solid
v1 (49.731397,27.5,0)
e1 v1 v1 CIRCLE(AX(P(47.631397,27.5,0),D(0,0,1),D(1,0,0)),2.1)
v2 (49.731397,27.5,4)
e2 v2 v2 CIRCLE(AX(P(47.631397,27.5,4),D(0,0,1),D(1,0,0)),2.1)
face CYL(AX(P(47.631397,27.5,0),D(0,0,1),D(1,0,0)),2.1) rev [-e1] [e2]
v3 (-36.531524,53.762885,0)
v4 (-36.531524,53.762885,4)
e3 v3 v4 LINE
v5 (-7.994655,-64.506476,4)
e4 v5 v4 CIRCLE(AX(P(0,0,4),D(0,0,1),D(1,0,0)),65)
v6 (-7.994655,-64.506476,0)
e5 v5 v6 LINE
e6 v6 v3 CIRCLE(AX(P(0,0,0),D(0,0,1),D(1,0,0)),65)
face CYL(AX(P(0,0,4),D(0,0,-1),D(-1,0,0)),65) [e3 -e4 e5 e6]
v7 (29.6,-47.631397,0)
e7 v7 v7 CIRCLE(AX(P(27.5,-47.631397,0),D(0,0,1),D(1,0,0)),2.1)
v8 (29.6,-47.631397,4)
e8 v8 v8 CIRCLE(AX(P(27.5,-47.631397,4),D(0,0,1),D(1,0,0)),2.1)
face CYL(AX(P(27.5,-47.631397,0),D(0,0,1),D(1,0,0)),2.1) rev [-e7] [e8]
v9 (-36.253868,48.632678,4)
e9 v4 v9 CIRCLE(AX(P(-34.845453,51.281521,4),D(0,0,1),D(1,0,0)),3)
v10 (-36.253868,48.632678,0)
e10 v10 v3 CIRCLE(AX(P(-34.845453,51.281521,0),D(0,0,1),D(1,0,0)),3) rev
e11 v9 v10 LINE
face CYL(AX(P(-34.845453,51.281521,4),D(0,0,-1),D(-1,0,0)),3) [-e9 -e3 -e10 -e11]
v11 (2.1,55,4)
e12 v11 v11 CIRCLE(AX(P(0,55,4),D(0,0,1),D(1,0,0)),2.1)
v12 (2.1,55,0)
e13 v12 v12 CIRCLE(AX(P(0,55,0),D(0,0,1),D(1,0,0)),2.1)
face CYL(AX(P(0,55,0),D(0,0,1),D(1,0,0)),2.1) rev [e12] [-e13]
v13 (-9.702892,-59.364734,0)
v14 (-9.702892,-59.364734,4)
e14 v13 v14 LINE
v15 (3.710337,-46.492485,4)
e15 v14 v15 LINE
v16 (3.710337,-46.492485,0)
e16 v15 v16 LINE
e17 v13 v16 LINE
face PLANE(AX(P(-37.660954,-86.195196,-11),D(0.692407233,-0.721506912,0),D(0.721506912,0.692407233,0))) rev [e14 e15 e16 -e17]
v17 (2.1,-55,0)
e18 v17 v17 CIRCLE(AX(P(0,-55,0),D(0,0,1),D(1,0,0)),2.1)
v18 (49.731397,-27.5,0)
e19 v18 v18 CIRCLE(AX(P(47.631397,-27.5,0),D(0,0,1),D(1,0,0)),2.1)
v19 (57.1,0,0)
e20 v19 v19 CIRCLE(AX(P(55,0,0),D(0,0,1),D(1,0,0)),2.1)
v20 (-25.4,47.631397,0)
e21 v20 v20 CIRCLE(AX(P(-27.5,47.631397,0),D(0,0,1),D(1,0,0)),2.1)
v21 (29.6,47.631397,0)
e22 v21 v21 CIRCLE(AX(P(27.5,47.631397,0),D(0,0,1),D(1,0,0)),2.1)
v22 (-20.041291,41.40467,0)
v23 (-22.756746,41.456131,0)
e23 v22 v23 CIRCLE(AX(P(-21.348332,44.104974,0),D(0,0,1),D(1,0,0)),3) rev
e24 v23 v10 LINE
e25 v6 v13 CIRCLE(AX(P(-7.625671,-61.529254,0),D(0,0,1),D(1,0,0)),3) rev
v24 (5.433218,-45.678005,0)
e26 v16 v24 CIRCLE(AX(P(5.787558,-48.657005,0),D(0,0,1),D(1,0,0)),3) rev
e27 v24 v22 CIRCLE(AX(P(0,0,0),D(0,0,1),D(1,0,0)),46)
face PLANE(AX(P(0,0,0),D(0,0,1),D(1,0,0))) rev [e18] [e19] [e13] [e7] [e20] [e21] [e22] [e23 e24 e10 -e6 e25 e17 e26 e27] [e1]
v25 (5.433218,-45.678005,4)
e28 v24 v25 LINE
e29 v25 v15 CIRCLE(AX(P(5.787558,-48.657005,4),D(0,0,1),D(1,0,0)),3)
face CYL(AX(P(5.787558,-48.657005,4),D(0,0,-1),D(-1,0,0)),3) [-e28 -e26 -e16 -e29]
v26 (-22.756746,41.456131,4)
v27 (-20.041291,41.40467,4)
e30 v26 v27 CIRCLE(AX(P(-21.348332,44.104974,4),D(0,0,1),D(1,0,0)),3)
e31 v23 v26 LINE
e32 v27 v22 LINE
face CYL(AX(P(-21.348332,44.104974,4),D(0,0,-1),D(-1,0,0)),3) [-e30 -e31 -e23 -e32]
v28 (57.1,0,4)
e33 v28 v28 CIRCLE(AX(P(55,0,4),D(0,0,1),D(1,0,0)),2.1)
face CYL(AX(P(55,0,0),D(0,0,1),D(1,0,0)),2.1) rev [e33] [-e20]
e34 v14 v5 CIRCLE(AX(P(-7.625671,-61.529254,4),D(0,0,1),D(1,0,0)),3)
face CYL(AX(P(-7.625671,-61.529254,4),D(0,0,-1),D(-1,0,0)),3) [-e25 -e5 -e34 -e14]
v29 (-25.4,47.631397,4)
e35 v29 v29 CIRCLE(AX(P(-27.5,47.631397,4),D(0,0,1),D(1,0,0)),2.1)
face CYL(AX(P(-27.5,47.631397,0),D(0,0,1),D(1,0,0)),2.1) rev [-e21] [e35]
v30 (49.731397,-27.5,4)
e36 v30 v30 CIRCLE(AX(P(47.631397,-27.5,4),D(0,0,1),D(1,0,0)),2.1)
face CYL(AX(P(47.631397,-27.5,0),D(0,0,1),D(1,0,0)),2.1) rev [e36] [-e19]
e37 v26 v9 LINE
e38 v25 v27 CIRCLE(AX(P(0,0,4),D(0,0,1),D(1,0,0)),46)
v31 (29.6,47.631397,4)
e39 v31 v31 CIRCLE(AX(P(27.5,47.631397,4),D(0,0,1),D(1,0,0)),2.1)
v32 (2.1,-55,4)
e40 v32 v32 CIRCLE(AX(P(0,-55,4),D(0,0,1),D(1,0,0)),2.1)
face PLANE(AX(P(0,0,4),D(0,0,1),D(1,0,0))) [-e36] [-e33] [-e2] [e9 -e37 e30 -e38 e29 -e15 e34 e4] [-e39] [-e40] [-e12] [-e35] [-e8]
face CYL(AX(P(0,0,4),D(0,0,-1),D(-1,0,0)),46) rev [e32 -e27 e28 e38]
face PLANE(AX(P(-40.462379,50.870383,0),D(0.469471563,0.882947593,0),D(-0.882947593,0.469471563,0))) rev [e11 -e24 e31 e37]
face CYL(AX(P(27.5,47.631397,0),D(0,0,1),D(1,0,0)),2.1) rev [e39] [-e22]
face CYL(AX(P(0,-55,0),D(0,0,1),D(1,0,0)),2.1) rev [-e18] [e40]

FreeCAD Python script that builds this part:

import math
import FreeCAD as App
import Part
import Sketcher

V = App.Vector
Q = App.Units.Quantity


def edges_at(feature, points):
    """Names of the edges that pass closest to the given points."""
    edges = feature.Shape.Edges
    near = lambda p: min(range(len(edges)), key=lambda i: edges[i].distToShape(Part.Vertex(*p))[0])
    return sorted({f"Edge{near(p) + 1}" for p in points})

doc = App.newDocument("Part")
body = doc.addObject("PartDesign::Body", "Body")

# Sketch on XY plane
sketch1 = body.newObject("Sketcher::SketchObject", "Sketch")
sketch1.AttachmentSupport = (doc.getObject("XY_Plane"), [""])
sketch1.MapMode = "FlatFace"
sketch1.addGeometry(Part.Circle(V(0, 0, 0), V(0, 0, 1), 65), False)
sketch1.addGeometry(Part.Circle(V(0, 0, 0), V(0, 0, 1), 46), False)
sketch1.addConstraint(Sketcher.Constraint("Coincident", 0, 3, -1, 1))
sketch1.addConstraint(Sketcher.Constraint("Coincident", 1, 3, -1, 1))
sketch1.addConstraint(Sketcher.Constraint("Diameter", 0, Q("130 mm")))
sketch1.addConstraint(Sketcher.Constraint("Diameter", 1, Q("92 mm")))
pad1 = body.newObject("PartDesign::Pad", "Pad")
pad1.Profile = sketch1
pad1.Length = 4

# Sketch on XY plane
sketch2 = body.newObject("Sketcher::SketchObject", "Sketch001")
sketch2.AttachmentSupport = (doc.getObject("XY_Plane"), [""])
sketch2.MapMode = "FlatFace"
sketch2.AttachmentOffset = App.Placement(V(0, 0, 4), App.Rotation())
sketch2.addGeometry(Part.Circle(V(0, 55, 0), V(0, 0, 1), 2.1), False)
sketch2.addGeometry(Part.Circle(V(27.5, 47.6, 0), V(0, 0, 1), 2.1), False)
sketch2.addGeometry(Part.Circle(V(47.6, 27.5, 0), V(0, 0, 1), 2.1), False)
sketch2.addGeometry(Part.Circle(V(55, 0, 0), V(0, 0, 1), 2.1), False)
sketch2.addGeometry(Part.Circle(V(47.6, -27.5, 0), V(0, 0, 1), 2.1), False)
sketch2.addGeometry(Part.Circle(V(27.5, -47.6, 0), V(0, 0, 1), 2.1), False)
sketch2.addGeometry(Part.Circle(V(0, -55, 0), V(0, 0, 1), 2.1), False)
sketch2.addGeometry(Part.Circle(V(-27.5, -47.6, 0), V(0, 0, 1), 2.1), False)
sketch2.addGeometry(Part.Circle(V(-47.6, -27.5, 0), V(0, 0, 1), 2.1), False)
sketch2.addGeometry(Part.Circle(V(-55, 0, 0), V(0, 0, 1), 2.1), False)
sketch2.addGeometry(Part.Circle(V(-47.6, 27.5, 0), V(0, 0, 1), 2.1), False)
sketch2.addGeometry(Part.Circle(V(-27.5, 47.6, 0), V(0, 0, 1), 2.1), False)
sketch2.addConstraint(Sketcher.Constraint("Equal", 0, 1))
sketch2.addConstraint(Sketcher.Constraint("Equal", 1, 2))
sketch2.addConstraint(Sketcher.Constraint("Equal", 2, 3))
sketch2.addConstraint(Sketcher.Constraint("Equal", 3, 4))
sketch2.addConstraint(Sketcher.Constraint("Equal", 4, 5))
sketch2.addConstraint(Sketcher.Constraint("Equal", 5, 6))
sketch2.addConstraint(Sketcher.Constraint("Equal", 6, 7))
sketch2.addConstraint(Sketcher.Constraint("Equal", 7, 8))
sketch2.addConstraint(Sketcher.Constraint("Equal", 8, 9))
sketch2.addConstraint(Sketcher.Constraint("Equal", 9, 10))
sketch2.addConstraint(Sketcher.Constraint("Equal", 10, 11))
sketch2.addConstraint(Sketcher.Constraint("Symmetric", 0, 3, 6, 3, -1, 1))
sketch2.addConstraint(Sketcher.Constraint("Symmetric", 1, 3, 7, 3, -1, 1))
sketch2.addConstraint(Sketcher.Constraint("Symmetric", 2, 3, 8, 3, -1, 1))
sketch2.addConstraint(Sketcher.Constraint("Symmetric", 3, 3, 9, 3, -1, 1))
sketch2.addConstraint(Sketcher.Constraint("Symmetric", 4, 3, 10, 3, -1, 1))
sketch2.addConstraint(Sketcher.Constraint("Symmetric", 5, 3, 11, 3, -1, 1))
sketch2.addConstraint(Sketcher.Constraint("Symmetric", 5, 3, 7, 3, -2))
sketch2.addConstraint(Sketcher.Constraint("Symmetric", 4, 3, 8, 3, -2))
sketch2.addConstraint(Sketcher.Constraint("PointOnObject", 0, 3, -2))
sketch2.addConstraint(Sketcher.Constraint("PointOnObject", 3, 3, -1))
sketch2.addConstraint(Sketcher.Constraint("Diameter", 0, Q("4.2 mm")))
sketch2.addConstraint(Sketcher.Constraint("DistanceY", -1, 1, 0, 3, Q("55 mm")))
sketch2.addConstraint(Sketcher.Constraint("DistanceX", -1, 1, 3, 3, Q("55 mm")))
sketch2.addConstraint(Sketcher.Constraint("DistanceY", 4, 3, 2, 3, Q("55 mm")))
sketch2.addConstraint(Sketcher.Constraint("DistanceX", 7, 3, 5, 3, Q("55 mm")))
sketch2.addConstraint(Sketcher.Constraint("DistanceY", -1, 1, 1, 3, Q("47.631397 mm")))
sketch2.addConstraint(Sketcher.Constraint("DistanceX", -1, 1, 2, 3, Q("47.631397 mm")))
pocket1 = body.newObject("PartDesign::Pocket", "Pocket")
pocket1.Profile = sketch2
pocket1.Length = 4

# Sketch on XY plane
sketch3 = body.newObject("Sketcher::SketchObject", "Sketch002")
sketch3.AttachmentSupport = (doc.getObject("XY_Plane"), [""])
sketch3.MapMode = "FlatFace"
sketch3.addGeometry(Part.LineSegment(V(27, 15, 0), V(-40, 51, 0)), False)
sketch3.addGeometry(Part.ArcOfCircle(Part.Circle(V(0, 0, 0), V(0, 0, 1), 65), math.radians(128), math.radians(250)), False)
sketch3.addGeometry(Part.LineSegment(V(-22, -61, 0), V(27, 15, 0)), False)
sketch3.addConstraint(Sketcher.Constraint("Coincident", 0, 2, 1, 1))
sketch3.addConstraint(Sketcher.Constraint("Coincident", 1, 2, 2, 1))
sketch3.addConstraint(Sketcher.Constraint("Coincident", 2, 2, 0, 1))
sketch3.addConstraint(Sketcher.Constraint("Coincident", 1, 3, -1, 1))
sketch3.addConstraint(Sketcher.Constraint("Radius", 1, Q("65 mm")))
sketch3.addConstraint(Sketcher.Constraint("Angle", 0, Q("152 deg")))
sketch3.addConstraint(Sketcher.Constraint("DistanceX", -1, 1, 2, 2, Q("27 mm")))
sketch3.addConstraint(Sketcher.Constraint("DistanceY", -1, 1, 2, 2, Q("15 mm")))
sketch3.addConstraint(Sketcher.Constraint("Distance", 2, Q("90.499499 mm")))
pocket2 = body.newObject("PartDesign::Pocket", "Pocket001")
pocket2.Profile = sketch3
pocket2.Length = 4
pocket2.Reversed = True
doc.recompute()

fillet = body.newObject("PartDesign::Fillet", "Fillet")
fillet.Base = (pocket2, edges_at(pocket2, [
    (-11.108, -44.639, 2),
    (-21.385, 40.727, 2),
    (-21.728, -61.261, 2),
    (-40.462, 50.87, 2),
]))
fillet.Radius = 3

# Sketch on XY plane
sketch4 = body.newObject("Sketcher::SketchObject", "Sketch003")
sketch4.AttachmentSupport = (doc.getObject("XY_Plane"), [""])
sketch4.MapMode = "FlatFace"
sketch4.AttachmentOffset = App.Placement(V(0, 0, -11), App.Rotation())
sketch4.addGeometry(Part.LineSegment(V(-37.7, -86.2, 0), V(4.4, -45.8, 0)), False)
sketch4.addGeometry(Part.ArcOfCircle(Part.Circle(V(0, 0, 0), V(0, 0, 1), 46), math.radians(-101.43), math.radians(-84.45)), False)
sketch4.addGeometry(Part.ArcOfCircle(Part.Circle(V(-9.7, -48, 0), V(0, 0, 1), 3), math.radians(79), math.radians(147)), False)
sketch4.addGeometry(Part.LineSegment(V(-12.2, -46.4, 0), V(-37.7, -86.2, 0)), False)
sketch4.addConstraint(Sketcher.Constraint("Coincident", 0, 2, 1, 2))
sketch4.addConstraint(Sketcher.Constraint("Tangent", 1, 1, 2, 1))
sketch4.addConstraint(Sketcher.Constraint("Tangent", 2, 2, 3, 1))
sketch4.addConstraint(Sketcher.Constraint("Coincident", 3, 2, 0, 1))
sketch4.addConstraint(Sketcher.Constraint("Coincident", 1, 3, -1, 1))
sketch4.addConstraint(Sketcher.Constraint("Radius", 1, Q("46 mm")))
sketch4.addConstraint(Sketcher.Constraint("Radius", 2, Q("3 mm")))
sketch4.addConstraint(Sketcher.Constraint("DistanceX", 2, 3, -1, 1, Q("9.71284 mm")))
sketch4.addConstraint(Sketcher.Constraint("DistanceX", -1, 1, 0, 2, Q("4.448149 mm")))
sketch4.addConstraint(Sketcher.Constraint("DistanceY", 2, 2, -1, 1, Q("46.41239 mm")))
sketch4.addConstraint(Sketcher.Constraint("DistanceX", 3, 2, 2, 2, Q("25.420122 mm")))
pocket3 = body.newObject("PartDesign::Pocket", "Pocket002")
pocket3.Profile = sketch4
pocket3.Length = 15
pocket3.Reversed = True
doc.recompute()

fillet2 = body.newObject("PartDesign::Fillet", "Fillet001")
fillet2.Base = (pocket3, edges_at(pocket3, [(-13.988, -63.477, 2), (4.448, -45.784, 2)]))
fillet2.Radius = 3

doc.recompute()
